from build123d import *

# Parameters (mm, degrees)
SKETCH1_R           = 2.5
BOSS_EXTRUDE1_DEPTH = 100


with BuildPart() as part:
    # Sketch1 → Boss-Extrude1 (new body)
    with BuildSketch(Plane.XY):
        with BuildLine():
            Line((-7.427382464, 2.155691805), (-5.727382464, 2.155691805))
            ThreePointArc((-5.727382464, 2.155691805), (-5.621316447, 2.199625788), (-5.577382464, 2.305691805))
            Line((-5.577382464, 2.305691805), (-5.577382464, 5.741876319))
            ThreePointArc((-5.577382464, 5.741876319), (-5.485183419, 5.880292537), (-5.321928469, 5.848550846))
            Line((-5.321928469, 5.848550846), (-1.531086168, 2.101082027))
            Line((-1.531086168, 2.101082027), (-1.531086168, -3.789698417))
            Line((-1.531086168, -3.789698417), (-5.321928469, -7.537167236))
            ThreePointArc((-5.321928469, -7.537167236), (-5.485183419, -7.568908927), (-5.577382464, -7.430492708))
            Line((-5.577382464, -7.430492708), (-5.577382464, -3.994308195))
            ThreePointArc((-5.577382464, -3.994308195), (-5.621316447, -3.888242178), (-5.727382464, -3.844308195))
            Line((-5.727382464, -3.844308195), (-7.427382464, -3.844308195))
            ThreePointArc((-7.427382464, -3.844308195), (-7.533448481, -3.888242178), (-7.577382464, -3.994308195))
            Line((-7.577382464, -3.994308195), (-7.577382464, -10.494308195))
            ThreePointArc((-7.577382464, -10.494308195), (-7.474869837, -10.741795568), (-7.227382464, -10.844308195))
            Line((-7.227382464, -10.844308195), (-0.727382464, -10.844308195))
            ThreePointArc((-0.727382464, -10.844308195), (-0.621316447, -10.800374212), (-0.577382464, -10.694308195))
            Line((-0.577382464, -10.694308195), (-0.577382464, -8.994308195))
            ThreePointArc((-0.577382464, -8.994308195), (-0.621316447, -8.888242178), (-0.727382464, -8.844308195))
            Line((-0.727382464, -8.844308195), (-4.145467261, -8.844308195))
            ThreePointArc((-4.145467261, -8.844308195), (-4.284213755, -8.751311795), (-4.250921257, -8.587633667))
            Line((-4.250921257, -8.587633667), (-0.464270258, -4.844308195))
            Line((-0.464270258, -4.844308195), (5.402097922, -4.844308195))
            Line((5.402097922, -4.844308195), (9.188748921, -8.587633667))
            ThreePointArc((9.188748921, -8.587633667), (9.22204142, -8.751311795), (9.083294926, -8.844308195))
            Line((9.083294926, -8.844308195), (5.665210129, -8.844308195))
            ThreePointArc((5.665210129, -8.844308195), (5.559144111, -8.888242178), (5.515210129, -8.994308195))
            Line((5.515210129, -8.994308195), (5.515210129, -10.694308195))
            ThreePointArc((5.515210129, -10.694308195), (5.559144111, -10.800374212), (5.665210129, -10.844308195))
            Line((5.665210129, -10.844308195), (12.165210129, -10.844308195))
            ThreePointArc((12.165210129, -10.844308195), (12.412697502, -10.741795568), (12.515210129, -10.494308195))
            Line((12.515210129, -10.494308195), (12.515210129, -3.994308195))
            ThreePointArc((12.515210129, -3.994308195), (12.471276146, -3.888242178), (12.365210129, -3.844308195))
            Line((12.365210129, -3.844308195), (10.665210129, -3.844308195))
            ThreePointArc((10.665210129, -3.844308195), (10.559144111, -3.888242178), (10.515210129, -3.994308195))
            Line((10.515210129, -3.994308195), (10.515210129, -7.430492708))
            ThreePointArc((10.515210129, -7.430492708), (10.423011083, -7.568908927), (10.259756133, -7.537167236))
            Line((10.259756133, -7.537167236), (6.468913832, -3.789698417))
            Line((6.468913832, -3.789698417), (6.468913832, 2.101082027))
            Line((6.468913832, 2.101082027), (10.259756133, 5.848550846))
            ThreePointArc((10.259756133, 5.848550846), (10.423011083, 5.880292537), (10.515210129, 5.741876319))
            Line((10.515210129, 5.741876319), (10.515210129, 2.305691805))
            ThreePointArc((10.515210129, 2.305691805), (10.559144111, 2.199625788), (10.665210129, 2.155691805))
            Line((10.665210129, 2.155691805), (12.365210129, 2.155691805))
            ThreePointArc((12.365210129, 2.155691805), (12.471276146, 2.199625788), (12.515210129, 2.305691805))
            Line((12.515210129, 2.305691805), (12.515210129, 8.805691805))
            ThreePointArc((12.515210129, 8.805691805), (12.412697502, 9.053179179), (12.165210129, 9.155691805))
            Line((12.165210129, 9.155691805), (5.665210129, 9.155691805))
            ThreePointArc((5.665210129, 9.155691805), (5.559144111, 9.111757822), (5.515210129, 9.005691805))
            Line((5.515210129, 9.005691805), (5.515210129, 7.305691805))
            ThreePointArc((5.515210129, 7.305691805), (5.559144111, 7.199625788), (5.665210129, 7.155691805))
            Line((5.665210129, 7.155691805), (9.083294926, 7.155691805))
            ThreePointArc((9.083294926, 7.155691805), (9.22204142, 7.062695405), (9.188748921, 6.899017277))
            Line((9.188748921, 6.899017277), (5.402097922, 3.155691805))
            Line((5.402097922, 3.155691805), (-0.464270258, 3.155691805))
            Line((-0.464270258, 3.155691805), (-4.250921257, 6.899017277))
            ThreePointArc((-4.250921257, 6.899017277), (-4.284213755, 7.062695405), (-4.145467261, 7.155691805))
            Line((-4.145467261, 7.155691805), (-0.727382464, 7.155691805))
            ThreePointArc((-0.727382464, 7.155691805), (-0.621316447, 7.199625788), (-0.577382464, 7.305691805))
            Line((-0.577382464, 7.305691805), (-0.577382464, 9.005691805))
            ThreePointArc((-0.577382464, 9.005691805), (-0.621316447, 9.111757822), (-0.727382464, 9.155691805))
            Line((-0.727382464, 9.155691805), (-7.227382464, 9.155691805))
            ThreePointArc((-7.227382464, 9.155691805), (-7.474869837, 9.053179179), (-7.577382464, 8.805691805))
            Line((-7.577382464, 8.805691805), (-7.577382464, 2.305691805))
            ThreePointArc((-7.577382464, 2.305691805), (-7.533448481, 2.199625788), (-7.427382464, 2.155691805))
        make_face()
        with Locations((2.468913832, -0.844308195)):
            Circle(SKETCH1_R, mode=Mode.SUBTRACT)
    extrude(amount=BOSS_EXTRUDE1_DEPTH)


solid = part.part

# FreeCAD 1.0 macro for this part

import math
import FreeCAD as App
import Part
import Sketcher

V = App.Vector
Q = App.Units.Quantity

doc = App.newDocument("Part")
params = doc.addObject("Spreadsheet::Sheet", "Params")
for row, (alias, value) in enumerate([
    ("sketch1_diameter", "5 mm"),
    ("sketch1_radius", "0.15 mm"),
    ("sketch1_radius2", "0.35 mm"),
    ("sketch1_width", "1.7 mm"),
    ("sketch1_width2", "6.5 mm"),
    ("pad1_length", "100 mm"),
], start=1):
    params.set(f"A{row}", alias)
    params.set(f"B{row}", "=" + value)
    params.setAlias(f"B{row}", alias)

body = doc.addObject("PartDesign::Body", "Body")

sketch1 = body.newObject("Sketcher::SketchObject", "Sketch")
sketch1.AttachmentSupport = (doc.getObject("XY_Plane"), [""])
sketch1.MapMode = "FlatFace"
sketch1.addGeometry([
    Part.LineSegment(V(-7.427382, 2.155692, 0), V(-5.727382, 2.155692, 0)),
    Part.ArcOfCircle(Part.Circle(V(-5.727382, 2.305692, 0), V(0, 0, 1), 0.15), math.radians(-90), math.radians(0)),
    Part.LineSegment(V(-5.577382, 2.305692, 0), V(-5.577382, 5.741876, 0)),
    Part.ArcOfCircle(Part.Circle(V(-5.427382, 5.741876, 0), V(0, 0, 1), 0.15), math.radians(45.329662), math.radians(180)),
    Part.LineSegment(V(-5.321928, 5.848551, 0), V(-1.531086, 2.101082, 0)),
    Part.LineSegment(V(-1.531086, 2.101082, 0), V(-1.531086, -3.789698, 0)),
    Part.LineSegment(V(-1.531086, -3.789698, 0), V(-5.321928, -7.537167, 0)),
    Part.ArcOfCircle(Part.Circle(V(-5.427382, -7.430493, 0), V(0, 0, 1), 0.15), math.radians(180), math.radians(314.670338)),
    Part.LineSegment(V(-5.577382, -7.430493, 0), V(-5.577382, -3.994308, 0)),
    Part.ArcOfCircle(Part.Circle(V(-5.727382, -3.994308, 0), V(0, 0, 1), 0.15), math.radians(0), math.radians(90)),
    Part.LineSegment(V(-5.727382, -3.844308, 0), V(-7.427382, -3.844308, 0)),
    Part.ArcOfCircle(Part.Circle(V(-7.427382, -3.994308, 0), V(0, 0, 1), 0.15), math.radians(90), math.radians(180)),
    Part.LineSegment(V(-7.577382, -3.994308, 0), V(-7.577382, -10.494308, 0)),
    Part.ArcOfCircle(Part.Circle(V(-7.227382, -10.494308, 0), V(0, 0, 1), 0.35), math.radians(-180), math.radians(-90)),
    Part.LineSegment(V(-7.227382, -10.844308, 0), V(-0.727382, -10.844308, 0)),
    Part.ArcOfCircle(Part.Circle(V(-0.727382, -10.694308, 0), V(0, 0, 1), 0.15), math.radians(-90), math.radians(0)),
    Part.LineSegment(V(-0.577382, -10.694308, 0), V(-0.577382, -8.994308, 0)),
    Part.ArcOfCircle(Part.Circle(V(-0.727382, -8.994308, 0), V(0, 0, 1), 0.15), math.radians(0), math.radians(90)),
    Part.LineSegment(V(-0.727382, -8.844308, 0), V(-4.145467, -8.844308, 0)),
    Part.ArcOfCircle(Part.Circle(V(-4.145467, -8.694308, 0), V(0, 0, 1), 0.15), math.radians(134.670339), math.radians(270)),
    Part.LineSegment(V(-4.250921, -8.587634, 0), V(-0.46427, -4.844308, 0)),
    Part.LineSegment(V(-0.46427, -4.844308, 0), V(5.402098, -4.844308, 0)),
    Part.LineSegment(V(5.402098, -4.844308, 0), V(9.188749, -8.587634, 0)),
    Part.ArcOfCircle(Part.Circle(V(9.083295, -8.694308, 0), V(0, 0, 1), 0.15), math.radians(-90), math.radians(45.329662)),
    Part.LineSegment(V(9.083295, -8.844308, 0), V(5.66521, -8.844308, 0)),
    Part.ArcOfCircle(Part.Circle(V(5.66521, -8.994308, 0), V(0, 0, 1), 0.15), math.radians(90), math.radians(180)),
    Part.LineSegment(V(5.51521, -8.994308, 0), V(5.51521, -10.694308, 0)),
    Part.ArcOfCircle(Part.Circle(V(5.66521, -10.694308, 0), V(0, 0, 1), 0.15), math.radians(180), math.radians(270)),
    Part.LineSegment(V(5.66521, -10.844308, 0), V(12.16521, -10.844308, 0)),
    Part.ArcOfCircle(Part.Circle(V(12.16521, -10.494308, 0), V(0, 0, 1), 0.35), math.radians(-90), math.radians(0)),
    Part.LineSegment(V(12.51521, -10.494308, 0), V(12.51521, -3.994308, 0)),
    Part.ArcOfCircle(Part.Circle(V(12.36521, -3.994308, 0), V(0, 0, 1), 0.15), math.radians(0), math.radians(90)),
    Part.LineSegment(V(12.36521, -3.844308, 0), V(10.66521, -3.844308, 0)),
    Part.ArcOfCircle(Part.Circle(V(10.66521, -3.994308, 0), V(0, 0, 1), 0.15), math.radians(90), math.radians(180)),
    Part.LineSegment(V(10.51521, -3.994308, 0), V(10.51521, -7.430493, 0)),
    Part.ArcOfCircle(Part.Circle(V(10.36521, -7.430493, 0), V(0, 0, 1), 0.15), math.radians(-134.670338), math.radians(0)),
    Part.LineSegment(V(10.259756, -7.537167, 0), V(6.468914, -3.789698, 0)),
    Part.LineSegment(V(6.468914, -3.789698, 0), V(6.468914, 2.101082, 0)),
    Part.LineSegment(V(6.468914, 2.101082, 0), V(10.259756, 5.848551, 0)),
    Part.ArcOfCircle(Part.Circle(V(10.36521, 5.741876, 0), V(0, 0, 1), 0.15), math.radians(0.000001), math.radians(134.670338)),
    Part.LineSegment(V(10.51521, 5.741876, 0), V(10.51521, 2.305692, 0)),
    Part.ArcOfCircle(Part.Circle(V(10.66521, 2.305692, 0), V(0, 0, 1), 0.15), math.radians(180), math.radians(270)),
    Part.LineSegment(V(10.66521, 2.155692, 0), V(12.36521, 2.155692, 0)),
    Part.ArcOfCircle(Part.Circle(V(12.36521, 2.305692, 0), V(0, 0, 1), 0.15), math.radians(-90), math.radians(0)),
    Part.LineSegment(V(12.51521, 2.305692, 0), V(12.51521, 8.805692, 0)),
    Part.ArcOfCircle(Part.Circle(V(12.16521, 8.805692, 0), V(0, 0, 1), 0.35), math.radians(0), math.radians(90)),
    Part.LineSegment(V(12.16521, 9.155692, 0), V(5.66521, 9.155692, 0)),
    Part.ArcOfCircle(Part.Circle(V(5.66521, 9.005692, 0), V(0, 0, 1), 0.15), math.radians(90), math.radians(180)),
    Part.LineSegment(V(5.51521, 9.005692, 0), V(5.51521, 7.305692, 0)),
    Part.ArcOfCircle(Part.Circle(V(5.66521, 7.305692, 0), V(0, 0, 1), 0.15), math.radians(180), math.radians(270)),
    Part.LineSegment(V(5.66521, 7.155692, 0), V(9.083295, 7.155692, 0)),
    Part.ArcOfCircle(Part.Circle(V(9.083295, 7.005692, 0), V(0, 0, 1), 0.15), math.radians(-45.329662), math.radians(90)),
    Part.LineSegment(V(9.188749, 6.899017, 0), V(5.402098, 3.155692, 0)),
    Part.LineSegment(V(5.402098, 3.155692, 0), V(-0.46427, 3.155692, 0)),
    Part.LineSegment(V(-0.46427, 3.155692, 0), V(-4.250921, 6.899017, 0)),
    Part.ArcOfCircle(Part.Circle(V(-4.145467, 7.005692, 0), V(0, 0, 1), 0.15), math.radians(90), math.radians(225.329661)),
    Part.LineSegment(V(-4.145467, 7.155692, 0), V(-0.727382, 7.155692, 0)),
    Part.ArcOfCircle(Part.Circle(V(-0.727382, 7.305692, 0), V(0, 0, 1), 0.15), math.radians(-90), math.radians(0)),
    Part.LineSegment(V(-0.577382, 7.305692, 0), V(-0.577382, 9.005692, 0)),
    Part.ArcOfCircle(Part.Circle(V(-0.727382, 9.005692, 0), V(0, 0, 1), 0.15), math.radians(0), math.radians(90)),
    Part.LineSegment(V(-0.727382, 9.155692, 0), V(-7.227382, 9.155692, 0)),
    Part.ArcOfCircle(Part.Circle(V(-7.227382, 8.805692, 0), V(0, 0, 1), 0.35), math.radians(90), math.radians(180)),
    Part.LineSegment(V(-7.577382, 8.805692, 0), V(-7.577382, 2.305692, 0)),
    Part.ArcOfCircle(Part.Circle(V(-7.427382, 2.305692, 0), V(0, 0, 1), 0.15), math.radians(-180), math.radians(-90)),
    Part.Circle(V(2.468914, -0.844308, 0), V(0, 0, 1), 2.5),
], False)
sketch1.addConstraint([
    Sketcher.Constraint("Tangent", 0, 2, 1, 1),
    Sketcher.Constraint("Tangent", 1, 2, 2, 1),
    Sketcher.Constraint("Tangent", 2, 2, 3, 2),
    Sketcher.Constraint("Tangent", 3, 1, 4, 1),
    Sketcher.Constraint("Coincident", 4, 2, 5, 1),
    Sketcher.Constraint("Coincident", 5, 2, 6, 1),
    Sketcher.Constraint("Tangent", 6, 2, 7, 2),
    Sketcher.Constraint("Tangent", 7, 1, 8, 1),
    Sketcher.Constraint("Tangent", 8, 2, 9, 1),
    Sketcher.Constraint("Tangent", 9, 2, 10, 1),
    Sketcher.Constraint("Tangent", 10, 2, 11, 1),
    Sketcher.Constraint("Tangent", 11, 2, 12, 1),
    Sketcher.Constraint("Tangent", 12, 2, 13, 1),
    Sketcher.Constraint("Tangent", 13, 2, 14, 1),
    Sketcher.Constraint("Tangent", 14, 2, 15, 1),
    Sketcher.Constraint("Tangent", 15, 2, 16, 1),
    Sketcher.Constraint("Tangent", 16, 2, 17, 1),
    Sketcher.Constraint("Tangent", 17, 2, 18, 1),
    Sketcher.Constraint("Tangent", 18, 2, 19, 2),
    Sketcher.Constraint("Tangent", 19, 1, 20, 1),
    Sketcher.Constraint("Coincident", 20, 2, 21, 1),
    Sketcher.Constraint("Coincident", 21, 2, 22, 1),
    Sketcher.Constraint("Tangent", 22, 2, 23, 2),
    Sketcher.Constraint("Tangent", 23, 1, 24, 1),
    Sketcher.Constraint("Tangent", 24, 2, 25, 1),
    Sketcher.Constraint("Tangent", 25, 2, 26, 1),
    Sketcher.Constraint("Tangent", 26, 2, 27, 1),
    Sketcher.Constraint("Tangent", 27, 2, 28, 1),
    Sketcher.Constraint("Tangent", 28, 2, 29, 1),
    Sketcher.Constraint("Tangent", 29, 2, 30, 1),
    Sketcher.Constraint("Tangent", 30, 2, 31, 1),
    Sketcher.Constraint("Tangent", 31, 2, 32, 1),
    Sketcher.Constraint("Tangent", 32, 2, 33, 1),
    Sketcher.Constraint("Tangent", 33, 2, 34, 1),
    Sketcher.Constraint("Tangent", 34, 2, 35, 2),
    Sketcher.Constraint("Tangent", 35, 1, 36, 1),
    Sketcher.Constraint("Coincident", 36, 2, 37, 1),
    Sketcher.Constraint("Coincident", 37, 2, 38, 1),
    Sketcher.Constraint("Tangent", 38, 2, 39, 2),
    Sketcher.Constraint("Tangent", 39, 1, 40, 1),
    Sketcher.Constraint("Tangent", 40, 2, 41, 1),
    Sketcher.Constraint("Tangent", 41, 2, 42, 1),
    Sketcher.Constraint("Tangent", 42, 2, 43, 1),
    Sketcher.Constraint("Tangent", 43, 2, 44, 1),
    Sketcher.Constraint("Tangent", 44, 2, 45, 1),
    Sketcher.Constraint("Tangent", 45, 2, 46, 1),
    Sketcher.Constraint("Tangent", 46, 2, 47, 1),
    Sketcher.Constraint("Tangent", 47, 2, 48, 1),
    Sketcher.Constraint("Tangent", 48, 2, 49, 1),
    Sketcher.Constraint("Tangent", 49, 2, 50, 1),
    Sketcher.Constraint("Tangent", 50, 2, 51, 2),
    Sketcher.Constraint("Tangent", 51, 1, 52, 1),
    Sketcher.Constraint("Coincident", 52, 2, 53, 1),
    Sketcher.Constraint("Coincident", 53, 2, 54, 1),
    Sketcher.Constraint("Tangent", 54, 2, 55, 2),
    Sketcher.Constraint("Tangent", 55, 1, 56, 1),
    Sketcher.Constraint("Tangent", 56, 2, 57, 1),
    Sketcher.Constraint("Tangent", 57, 2, 58, 1),
    Sketcher.Constraint("Tangent", 58, 2, 59, 1),
    Sketcher.Constraint("Tangent", 59, 2, 60, 1),
    Sketcher.Constraint("Tangent", 60, 2, 61, 1),
    Sketcher.Constraint("Tangent", 61, 2, 62, 1),
    Sketcher.Constraint("Tangent", 62, 2, 63, 1),
    Sketcher.Constraint("Tangent", 63, 2, 0, 1),
    Sketcher.Constraint("Horizontal", 0),
    Sketcher.Constraint("Vertical", 2),
    Sketcher.Constraint("Vertical", 5),
    Sketcher.Constraint("Vertical", 8),
    Sketcher.Constraint("Horizontal", 10),
    Sketcher.Constraint("Vertical", 12),
    Sketcher.Constraint("Horizontal", 14),
    Sketcher.Constraint("Vertical", 16),
    Sketcher.Constraint("Horizontal", 18),
    Sketcher.Constraint("Horizontal", 21),
    Sketcher.Constraint("Horizontal", 24),
    Sketcher.Constraint("Vertical", 26),
    Sketcher.Constraint("Horizontal", 28),
    Sketcher.Constraint("Vertical", 30),
    Sketcher.Constraint("Horizontal", 32),
    Sketcher.Constraint("Vertical", 34),
    Sketcher.Constraint("Vertical", 37),
    Sketcher.Constraint("Vertical", 40),
    Sketcher.Constraint("Horizontal", 42),
    Sketcher.Constraint("Vertical", 44),
    Sketcher.Constraint("Horizontal", 46),
    Sketcher.Constraint("Vertical", 48),
    Sketcher.Constraint("Horizontal", 50),
    Sketcher.Constraint("Horizontal", 53),
    Sketcher.Constraint("Horizontal", 56),
    Sketcher.Constraint("Vertical", 58),
    Sketcher.Constraint("Horizontal", 60),
    Sketcher.Constraint("Vertical", 62),
    Sketcher.Constraint("Equal", 1, 3),
    Sketcher.Constraint("Equal", 3, 7),
    Sketcher.Constraint("Equal", 7, 9),
    Sketcher.Constraint("Equal", 9, 11),
    Sketcher.Constraint("Equal", 11, 15),
    Sketcher.Constraint("Equal", 15, 17),
    Sketcher.Constraint("Equal", 17, 19),
    Sketcher.Constraint("Equal", 19, 23),
    Sketcher.Constraint("Equal", 23, 25),
    Sketcher.Constraint("Equal", 25, 27),
    Sketcher.Constraint("Equal", 13, 29),
    Sketcher.Constraint("Equal", 27, 31),
    Sketcher.Constraint("Equal", 31, 33),
    Sketcher.Constraint("Equal", 33, 35),
    Sketcher.Constraint("Equal", 35, 39),
    Sketcher.Constraint("Equal", 39, 41),
    Sketcher.Constraint("Equal", 41, 43),
    Sketcher.Constraint("Equal", 29, 45),
    Sketcher.Constraint("Equal", 43, 47),
    Sketcher.Constraint("Equal", 47, 49),
    Sketcher.Constraint("Equal", 49, 51),
    Sketcher.Constraint("Equal", 51, 55),
    Sketcher.Constraint("Equal", 55, 57),
    Sketcher.Constraint("Equal", 57, 59),
    Sketcher.Constraint("Equal", 45, 61),
    Sketcher.Constraint("Equal", 59, 63),
    Sketcher.Constraint("Parallel", 6, 20),
    Sketcher.Constraint("Parallel", 4, 22),
    Sketcher.Constraint("Parallel", 22, 36),
    Sketcher.Constraint("Parallel", 20, 38),
    Sketcher.Constraint("Parallel", 38, 52),
    Sketcher.Constraint("Parallel", 36, 54),
    Sketcher.Constraint("Horizontal", 19, 3, 23, 3),
    Sketcher.Constraint("Horizontal", 15, 3, 27, 3),
    Sketcher.Constraint("Horizontal", 11, 3, 31, 3),
    Sketcher.Constraint("Horizontal", 7, 3, 35, 3),
    Sketcher.Constraint("Horizontal", 3, 3, 39, 3),
    Sketcher.Constraint("Horizontal", 1, 3, 41, 3),
    Sketcher.Constraint("Horizontal", 51, 3, 55, 3),
    Sketcher.Constraint("Horizontal", 47, 3, 59, 3),
    Sketcher.Constraint("Horizontal", 19, 1, 22, 2),
    Sketcher.Constraint("Horizontal", 5, 2, 36, 2),
    Sketcher.Constraint("Horizontal", 4, 2, 37, 2),
    Sketcher.Constraint("Vertical", 3, 3, 7, 3),
    Sketcher.Constraint("Vertical", 31, 3, 43, 3),
    Sketcher.Constraint("Vertical", 27, 3, 47, 3),
    Sketcher.Constraint("Vertical", 23, 3, 51, 3),
    Sketcher.Constraint("Vertical", 19, 3, 55, 3),
    Sketcher.Constraint("Vertical", 17, 3, 57, 3),
    Sketcher.Constraint("Vertical", 13, 3, 61, 3),
    Sketcher.Constraint("Vertical", 21, 2, 52, 2),
    Sketcher.Constraint("Equal", 18, 24),
    Sketcher.Constraint("Equal", 14, 28),
    Sketcher.Constraint("Equal", 10, 32),
    Sketcher.Constraint("Equal", 2, 8),
    Sketcher.Constraint("Equal", 60, 12),
    Sketcher.Constraint("Equal", 42, 16),
    Sketcher.Constraint("Equal", 30, 44),
    Sketcher.Constraint("Equal", 26, 48),
    Sketcher.Constraint("Diameter", 64, Q("5 mm")),
    Sketcher.Constraint("Radius", 1, Q("0.15 mm")),
    Sketcher.Constraint("Radius", 13, Q("0.35 mm")),
    Sketcher.Constraint("DistanceX", 0, 1, 0, 2, Q("1.7 mm")),
    Sketcher.Constraint("DistanceX", 14, 1, 14, 2, Q("6.5 mm")),
    Sketcher.Constraint("DistanceX", 21, 1, 21, 2, Q("5.866368 mm")),
    Sketcher.Constraint("DistanceY", 5, 2, 5, 1, Q("5.89078 mm")),
    Sketcher.Constraint("DistanceY", 5, 2, -1, 1, Q("3.789698 mm")),
    Sketcher.Constraint("Distance", 4, Q("5.330479 mm")),
    Sketcher.Constraint("DistanceX", 18, 2, 18, 1, Q("3.418085 mm")),
    Sketcher.Constraint("DistanceY", 2, 1, 2, 2, Q("3.436185 mm")),
    Sketcher.Constraint("DistanceY", -1, 1, 1, 3, Q("2.305692 mm")),
    Sketcher.Constraint("DistanceX", -1, 1, 25, 3, Q("5.66521 mm")),
    Sketcher.Constraint("DistanceY", 64, 3, -1, 1, Q("0.844308 mm")),
    Sketcher.Constraint("DistanceX", 3, 1, -1, 1, Q("5.321928 mm")),
    Sketcher.Constraint("DistanceX", -1, 1, 64, 3, Q("2.468914 mm")),
])
sketch1.setExpression("Constraints[151]", "Params.sketch1_diameter")
sketch1.setExpression("Constraints[152]", "Params.sketch1_radius")
sketch1.setExpression("Constraints[153]", "Params.sketch1_radius2")
sketch1.setExpression("Constraints[154]", "Params.sketch1_width")
sketch1.setExpression("Constraints[155]", "Params.sketch1_width2")
pad1 = body.newObject("PartDesign::Pad", "Pad")
pad1.Profile = sketch1
pad1.setExpression("Length", "Params.pad1_length")

doc.recompute()
